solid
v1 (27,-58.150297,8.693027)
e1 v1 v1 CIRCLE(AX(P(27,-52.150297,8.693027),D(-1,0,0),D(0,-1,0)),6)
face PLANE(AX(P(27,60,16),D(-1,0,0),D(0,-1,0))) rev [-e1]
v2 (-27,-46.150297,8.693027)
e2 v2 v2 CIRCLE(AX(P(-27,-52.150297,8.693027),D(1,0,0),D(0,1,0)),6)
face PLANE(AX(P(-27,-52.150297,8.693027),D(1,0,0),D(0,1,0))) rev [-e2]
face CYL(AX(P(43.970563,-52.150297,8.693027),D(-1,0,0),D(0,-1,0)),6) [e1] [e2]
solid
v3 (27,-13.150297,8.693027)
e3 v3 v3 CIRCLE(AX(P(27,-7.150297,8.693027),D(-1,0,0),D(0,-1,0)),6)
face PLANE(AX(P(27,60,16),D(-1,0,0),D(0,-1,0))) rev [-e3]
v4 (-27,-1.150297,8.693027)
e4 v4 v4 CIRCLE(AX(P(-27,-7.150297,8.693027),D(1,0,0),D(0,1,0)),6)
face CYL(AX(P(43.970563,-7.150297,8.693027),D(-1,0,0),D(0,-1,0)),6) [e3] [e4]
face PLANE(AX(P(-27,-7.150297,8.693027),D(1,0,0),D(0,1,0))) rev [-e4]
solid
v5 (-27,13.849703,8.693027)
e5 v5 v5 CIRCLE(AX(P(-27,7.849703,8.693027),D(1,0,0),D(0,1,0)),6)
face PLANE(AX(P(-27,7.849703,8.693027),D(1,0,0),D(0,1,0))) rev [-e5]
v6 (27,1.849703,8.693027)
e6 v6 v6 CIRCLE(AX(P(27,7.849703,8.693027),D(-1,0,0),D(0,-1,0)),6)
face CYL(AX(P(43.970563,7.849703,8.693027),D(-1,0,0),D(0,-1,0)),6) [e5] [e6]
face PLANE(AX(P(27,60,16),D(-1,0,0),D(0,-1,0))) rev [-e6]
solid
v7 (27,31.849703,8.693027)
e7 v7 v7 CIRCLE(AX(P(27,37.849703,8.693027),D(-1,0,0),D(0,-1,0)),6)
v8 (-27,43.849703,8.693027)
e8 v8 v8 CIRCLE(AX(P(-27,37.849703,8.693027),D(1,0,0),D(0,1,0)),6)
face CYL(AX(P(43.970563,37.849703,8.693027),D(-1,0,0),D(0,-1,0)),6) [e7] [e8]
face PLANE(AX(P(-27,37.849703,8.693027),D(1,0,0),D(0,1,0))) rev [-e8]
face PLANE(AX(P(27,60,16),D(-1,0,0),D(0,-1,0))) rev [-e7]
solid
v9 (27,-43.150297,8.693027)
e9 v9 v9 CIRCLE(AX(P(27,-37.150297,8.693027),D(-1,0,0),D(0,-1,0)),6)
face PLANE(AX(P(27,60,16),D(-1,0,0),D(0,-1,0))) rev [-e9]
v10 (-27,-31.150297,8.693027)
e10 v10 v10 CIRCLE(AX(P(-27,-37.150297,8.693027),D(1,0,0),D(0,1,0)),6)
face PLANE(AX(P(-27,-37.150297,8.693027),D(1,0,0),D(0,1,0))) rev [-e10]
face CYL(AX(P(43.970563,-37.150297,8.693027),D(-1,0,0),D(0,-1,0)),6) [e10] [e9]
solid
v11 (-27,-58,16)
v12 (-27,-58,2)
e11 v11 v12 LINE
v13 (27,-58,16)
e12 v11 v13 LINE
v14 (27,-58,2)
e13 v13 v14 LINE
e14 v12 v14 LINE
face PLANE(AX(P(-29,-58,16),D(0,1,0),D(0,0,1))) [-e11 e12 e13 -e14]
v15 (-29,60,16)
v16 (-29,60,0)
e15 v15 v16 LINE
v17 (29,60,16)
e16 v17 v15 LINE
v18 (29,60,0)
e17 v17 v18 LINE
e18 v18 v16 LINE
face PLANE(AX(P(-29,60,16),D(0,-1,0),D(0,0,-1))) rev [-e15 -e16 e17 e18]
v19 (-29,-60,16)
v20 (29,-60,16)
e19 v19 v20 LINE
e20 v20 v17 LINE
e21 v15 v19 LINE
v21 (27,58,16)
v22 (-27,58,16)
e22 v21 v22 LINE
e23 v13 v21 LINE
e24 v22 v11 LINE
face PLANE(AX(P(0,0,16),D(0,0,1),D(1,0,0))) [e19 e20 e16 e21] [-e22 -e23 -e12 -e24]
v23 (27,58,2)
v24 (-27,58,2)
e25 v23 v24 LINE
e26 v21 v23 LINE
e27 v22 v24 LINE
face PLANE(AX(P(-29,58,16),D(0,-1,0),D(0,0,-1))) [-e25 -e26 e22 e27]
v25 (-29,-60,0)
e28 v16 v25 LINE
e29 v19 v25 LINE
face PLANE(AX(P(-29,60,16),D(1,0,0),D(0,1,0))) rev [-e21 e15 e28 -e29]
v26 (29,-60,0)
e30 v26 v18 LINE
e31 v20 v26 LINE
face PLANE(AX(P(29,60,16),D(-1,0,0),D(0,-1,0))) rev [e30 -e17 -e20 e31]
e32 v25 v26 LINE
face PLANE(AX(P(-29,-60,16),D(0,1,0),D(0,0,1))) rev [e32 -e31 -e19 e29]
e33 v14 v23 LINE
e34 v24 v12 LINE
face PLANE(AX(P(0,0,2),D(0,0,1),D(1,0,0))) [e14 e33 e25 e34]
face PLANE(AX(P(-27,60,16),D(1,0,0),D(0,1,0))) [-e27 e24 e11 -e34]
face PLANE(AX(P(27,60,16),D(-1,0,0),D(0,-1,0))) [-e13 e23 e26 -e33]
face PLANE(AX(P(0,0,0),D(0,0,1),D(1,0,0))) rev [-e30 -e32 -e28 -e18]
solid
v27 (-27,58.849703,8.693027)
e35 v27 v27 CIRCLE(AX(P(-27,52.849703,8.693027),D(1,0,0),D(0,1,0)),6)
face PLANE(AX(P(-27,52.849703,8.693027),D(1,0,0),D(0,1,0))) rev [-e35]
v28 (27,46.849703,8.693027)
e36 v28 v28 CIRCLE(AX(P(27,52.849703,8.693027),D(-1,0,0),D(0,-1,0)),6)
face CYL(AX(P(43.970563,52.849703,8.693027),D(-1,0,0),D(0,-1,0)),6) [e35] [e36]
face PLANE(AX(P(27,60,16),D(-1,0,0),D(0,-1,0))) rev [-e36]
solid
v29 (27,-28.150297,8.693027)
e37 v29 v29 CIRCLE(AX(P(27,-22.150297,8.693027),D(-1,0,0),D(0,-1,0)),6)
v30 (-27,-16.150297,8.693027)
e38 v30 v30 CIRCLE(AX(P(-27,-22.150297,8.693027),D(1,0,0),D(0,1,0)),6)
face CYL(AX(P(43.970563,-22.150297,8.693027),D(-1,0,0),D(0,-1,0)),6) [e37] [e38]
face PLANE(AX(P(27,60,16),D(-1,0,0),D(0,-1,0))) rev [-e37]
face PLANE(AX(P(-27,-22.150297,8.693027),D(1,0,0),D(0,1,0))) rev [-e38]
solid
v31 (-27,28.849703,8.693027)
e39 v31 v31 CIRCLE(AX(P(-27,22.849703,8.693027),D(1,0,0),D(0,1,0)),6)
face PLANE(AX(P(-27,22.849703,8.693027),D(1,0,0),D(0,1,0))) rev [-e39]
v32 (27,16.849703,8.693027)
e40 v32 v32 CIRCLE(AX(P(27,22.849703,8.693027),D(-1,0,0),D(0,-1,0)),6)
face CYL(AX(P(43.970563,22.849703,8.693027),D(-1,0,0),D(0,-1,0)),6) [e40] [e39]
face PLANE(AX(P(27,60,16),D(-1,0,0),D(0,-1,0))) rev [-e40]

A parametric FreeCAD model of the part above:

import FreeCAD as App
import Part
import Sketcher
from FreeCAD import Vector


def faces_at(feature, points):
    """Names of the faces that lie closest to the given points."""
    faces = feature.Shape.Faces
    near = lambda p: min(range(len(faces)), key=lambda i: faces[i].distToShape(Part.Vertex(*p))[0])
    return sorted({f"Face{near(p) + 1}" for p in points})

doc = App.newDocument("Part")
body = doc.addObject("PartDesign::Body", "Body")

# Sketch on XY plane
sketch1 = body.newObject("Sketcher::SketchObject", "Sketch")
sketch1.AttachmentSupport = (doc.getObject("XY_Plane"), [""])
sketch1.MapMode = "FlatFace"
sketch1.addGeometry([
    Part.LineSegment(Vector(-29, 60, 0), Vector(-29, -60, 0)),
    Part.LineSegment(Vector(-29, -60, 0), Vector(29, -60, 0)),
    Part.LineSegment(Vector(29, -60, 0), Vector(29, 60, 0)),
    Part.LineSegment(Vector(29, 60, 0), Vector(-29, 60, 0)),
], False)
sketch1.addConstraint([
    Sketcher.Constraint("Coincident", 0, 2, 1, 1),
    Sketcher.Constraint("Coincident", 1, 2, 2, 1),
    Sketcher.Constraint("Coincident", 2, 2, 3, 1),
    Sketcher.Constraint("Coincident", 3, 2, 0, 1),
    Sketcher.Constraint("Vertical", 0),
    Sketcher.Constraint("Horizontal", 1),
    Sketcher.Constraint("Vertical", 2),
    Sketcher.Constraint("Horizontal", 3),
    Sketcher.Constraint("Symmetric", 0, 2, 2, 2, -1, 1),
    Sketcher.Constraint("DistanceX", 1, 1, 1, 2, 58.0),
    Sketcher.Constraint("DistanceY", 0, 2, 0, 1, 120.0),
])
pad1 = body.newObject("PartDesign::Pad", "Pad")
pad1.Profile = sketch1
pad1.Length = 16
doc.recompute()

thickness = body.newObject("PartDesign::Thickness", "Thickness")
thickness.Base = (pad1, faces_at(pad1, [(0, 0, 16)]))
thickness.Value = 2
thickness.Reversed = True
thickness.Join = "Intersection"
body2 = doc.addObject("PartDesign::Body", "Body001")

# Sketch on YZ plane
sketch2 = body2.newObject("Sketcher::SketchObject", "Sketch001")
sketch2.AttachmentSupport = (doc.getObject("YZ_Plane001"), [""])
sketch2.MapMode = "FlatFace"
sketch2.AttachmentOffset = App.Placement(Vector(0, 0, -27), App.Rotation())
sketch2.addGeometry(Part.Circle(Vector(-52, 9, 0), Vector(0, 0, 1), 6), False)
sketch2.addConstraint([
    Sketcher.Constraint("Diameter", 0, 12.0),
    Sketcher.Constraint("DistanceX", 0, 3, -1, 1, 52.150297),
    Sketcher.Constraint("DistanceY", -1, 1, 0, 3, 8.693027),
])
pad2 = body2.newObject("PartDesign::Pad", "Pad001")
pad2.Profile = sketch2
pad2.Length = 54
body3 = doc.addObject("PartDesign::Body", "Body002")

# Sketch on YZ plane
sketch3 = body3.newObject("Sketcher::SketchObject", "Sketch002")
sketch3.AttachmentSupport = (doc.getObject("YZ_Plane002"), [""])
sketch3.MapMode = "FlatFace"
sketch3.AttachmentOffset = App.Placement(Vector(0, 0, -27), App.Rotation())
sketch3.addGeometry(Part.Circle(Vector(-37, 9, 0), Vector(0, 0, 1), 6), False)
sketch3.addConstraint([
    Sketcher.Constraint("Diameter", 0, 12.0),
    Sketcher.Constraint("DistanceX", 0, 3, -1, 1, 37.150297),
    Sketcher.Constraint("DistanceY", -1, 1, 0, 3, 8.693027),
])
pad3 = body3.newObject("PartDesign::Pad", "Pad002")
pad3.Profile = sketch3
pad3.Length = 54
body4 = doc.addObject("PartDesign::Body", "Body003")

# Sketch on YZ plane
sketch4 = body4.newObject("Sketcher::SketchObject", "Sketch003")
sketch4.AttachmentSupport = (doc.getObject("YZ_Plane003"), [""])
sketch4.MapMode = "FlatFace"
sketch4.AttachmentOffset = App.Placement(Vector(0, 0, -27), App.Rotation())
sketch4.addGeometry(Part.Circle(Vector(-22, 9, 0), Vector(0, 0, 1), 6), False)
sketch4.addConstraint([
    Sketcher.Constraint("Diameter", 0, 12.0),
    Sketcher.Constraint("DistanceX", 0, 3, -1, 1, 22.150297),
    Sketcher.Constraint("DistanceY", -1, 1, 0, 3, 8.693027),
])
pad4 = body4.newObject("PartDesign::Pad", "Pad003")
pad4.Profile = sketch4
pad4.Length = 54
body5 = doc.addObject("PartDesign::Body", "Body004")

# Sketch on YZ plane
sketch5 = body5.newObject("Sketcher::SketchObject", "Sketch004")
sketch5.AttachmentSupport = (doc.getObject("YZ_Plane004"), [""])
sketch5.MapMode = "FlatFace"
sketch5.AttachmentOffset = App.Placement(Vector(0, 0, -27), App.Rotation())
sketch5.addGeometry(Part.Circle(Vector(-7, 9, 0), Vector(0, 0, 1), 6), False)
sketch5.addConstraint([
    Sketcher.Constraint("Diameter", 0, 12.0),
    Sketcher.Constraint("DistanceX", 0, 3, -1, 1, 7.150297),
    Sketcher.Constraint("DistanceY", -1, 1, 0, 3, 8.693027),
])
pad5 = body5.newObject("PartDesign::Pad", "Pad004")
pad5.Profile = sketch5
pad5.Length = 54
body6 = doc.addObject("PartDesign::Body", "Body005")

# Sketch on YZ plane
sketch6 = body6.newObject("Sketcher::SketchObject", "Sketch005")
sketch6.AttachmentSupport = (doc.getObject("YZ_Plane005"), [""])
sketch6.MapMode = "FlatFace"
sketch6.AttachmentOffset = App.Placement(Vector(0, 0, -27), App.Rotation())
sketch6.addGeometry(Part.Circle(Vector(8, 9, 0), Vector(0, 0, 1), 6), False)
sketch6.addConstraint([
    Sketcher.Constraint("Diameter", 0, 12.0),
    Sketcher.Constraint("DistanceX", -1, 1, 0, 3, 7.849703),
    Sketcher.Constraint("DistanceY", -1, 1, 0, 3, 8.693027),
])
pad6 = body6.newObject("PartDesign::Pad", "Pad005")
pad6.Profile = sketch6
pad6.Length = 54
body7 = doc.addObject("PartDesign::Body", "Body006")

# Sketch on YZ plane
sketch7 = body7.newObject("Sketcher::SketchObject", "Sketch006")
sketch7.AttachmentSupport = (doc.getObject("YZ_Plane006"), [""])
sketch7.MapMode = "FlatFace"
sketch7.AttachmentOffset = App.Placement(Vector(0, 0, -27), App.Rotation())
sketch7.addGeometry(Part.Circle(Vector(23, 9, 0), Vector(0, 0, 1), 6), False)
sketch7.addConstraint([
    Sketcher.Constraint("Diameter", 0, 12.0),
    Sketcher.Constraint("DistanceX", -1, 1, 0, 3, 22.849703),
    Sketcher.Constraint("DistanceY", -1, 1, 0, 3, 8.693027),
])
pad7 = body7.newObject("PartDesign::Pad", "Pad006")
pad7.Profile = sketch7
pad7.Length = 54
body8 = doc.addObject("PartDesign::Body", "Body007")

# Sketch on YZ plane
sketch8 = body8.newObject("Sketcher::SketchObject", "Sketch007")
sketch8.AttachmentSupport = (doc.getObject("YZ_Plane007"), [""])
sketch8.MapMode = "FlatFace"
sketch8.AttachmentOffset = App.Placement(Vector(0, 0, -27), App.Rotation())
sketch8.addGeometry(Part.Circle(Vector(38, 9, 0), Vector(0, 0, 1), 6), False)
sketch8.addConstraint([
    Sketcher.Constraint("Diameter", 0, 12.0),
    Sketcher.Constraint("DistanceX", -1, 1, 0, 3, 37.849703),
    Sketcher.Constraint("DistanceY", -1, 1, 0, 3, 8.693027),
])
pad8 = body8.newObject("PartDesign::Pad", "Pad007")
pad8.Profile = sketch8
pad8.Length = 54
body9 = doc.addObject("PartDesign::Body", "Body008")

# Sketch on YZ plane
sketch9 = body9.newObject("Sketcher::SketchObject", "Sketch008")
sketch9.AttachmentSupport = (doc.getObject("YZ_Plane008"), [""])
sketch9.MapMode = "FlatFace"
sketch9.AttachmentOffset = App.Placement(Vector(0, 0, -27), App.Rotation())
sketch9.addGeometry(Part.Circle(Vector(53, 9, 0), Vector(0, 0, 1), 6), False)
sketch9.addConstraint([
    Sketcher.Constraint("Diameter", 0, 12.0),
    Sketcher.Constraint("DistanceX", -1, 1, 0, 3, 52.849703),
    Sketcher.Constraint("DistanceY", -1, 1, 0, 3, 8.693027),
])
pad9 = body9.newObject("PartDesign::Pad", "Pad008")
pad9.Profile = sketch9
pad9.Length = 54

doc.recompute()
